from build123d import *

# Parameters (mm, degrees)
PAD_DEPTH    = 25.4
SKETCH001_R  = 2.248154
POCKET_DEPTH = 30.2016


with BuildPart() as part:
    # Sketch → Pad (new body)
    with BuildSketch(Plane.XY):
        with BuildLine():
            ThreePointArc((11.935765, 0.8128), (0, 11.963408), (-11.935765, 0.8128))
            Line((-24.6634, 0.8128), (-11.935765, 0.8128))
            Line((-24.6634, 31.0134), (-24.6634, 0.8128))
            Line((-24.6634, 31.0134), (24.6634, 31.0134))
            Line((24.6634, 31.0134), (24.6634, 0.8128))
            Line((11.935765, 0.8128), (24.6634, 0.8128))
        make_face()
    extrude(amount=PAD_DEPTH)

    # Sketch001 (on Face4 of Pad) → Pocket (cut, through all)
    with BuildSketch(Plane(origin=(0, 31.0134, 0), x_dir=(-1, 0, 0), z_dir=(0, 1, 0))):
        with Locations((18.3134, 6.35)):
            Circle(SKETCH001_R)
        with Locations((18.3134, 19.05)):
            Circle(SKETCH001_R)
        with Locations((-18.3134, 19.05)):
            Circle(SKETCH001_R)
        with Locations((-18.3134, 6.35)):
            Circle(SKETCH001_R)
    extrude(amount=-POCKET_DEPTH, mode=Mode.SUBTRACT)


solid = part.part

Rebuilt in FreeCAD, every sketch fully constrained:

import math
import FreeCAD as App
import Part
import Sketcher

V = App.Vector
Q = App.Units.Quantity

doc = App.newDocument("Part")
params = doc.addObject("Spreadsheet::Sheet", "Params")
for row, (alias, value) in enumerate([
    ("sketch1_width", "1.942 in"),
    ("sketch1_height", "1.189 in"),
    ("pad1_length", "1 in"),
], start=1):
    params.set(f"A{row}", alias)
    params.set(f"B{row}", "=" + value)
    params.setAlias(f"B{row}", alias)

body = doc.addObject("PartDesign::Body", "Body")

# Sketch on XY plane
sketch1 = body.newObject("Sketcher::SketchObject", "Sketch")
sketch1.AttachmentSupport = (doc.getObject("XY_Plane"), [""])
sketch1.MapMode = "FlatFace"
sketch1.addGeometry(Part.ArcOfCircle(Part.Circle(V(0, 0, 0), V(0, 0, 1), 11.963408), math.radians(3.895705), math.radians(176.104295)), False)
sketch1.addGeometry(Part.LineSegment(V(11.935765, 0.8128, 0), V(24.6634, 0.8128, 0)), False)
sketch1.addGeometry(Part.LineSegment(V(24.6634, 0.8128, 0), V(24.6634, 31.0134, 0)), False)
sketch1.addGeometry(Part.LineSegment(V(24.6634, 31.0134, 0), V(-24.6634, 31.0134, 0)), False)
sketch1.addGeometry(Part.LineSegment(V(-24.6634, 31.0134, 0), V(-24.6634, 0.8128, 0)), False)
sketch1.addGeometry(Part.LineSegment(V(-24.6634, 0.8128, 0), V(-11.935765, 0.8128, 0)), False)
sketch1.addConstraint(Sketcher.Constraint("Coincident", 0, 1, 1, 1))
sketch1.addConstraint(Sketcher.Constraint("Coincident", 1, 2, 2, 1))
sketch1.addConstraint(Sketcher.Constraint("Coincident", 2, 2, 3, 1))
sketch1.addConstraint(Sketcher.Constraint("Coincident", 3, 2, 4, 1))
sketch1.addConstraint(Sketcher.Constraint("Coincident", 4, 2, 5, 1))
sketch1.addConstraint(Sketcher.Constraint("Coincident", 5, 2, 0, 2))
sketch1.addConstraint(Sketcher.Constraint("Horizontal", 1))
sketch1.addConstraint(Sketcher.Constraint("Vertical", 2))
sketch1.addConstraint(Sketcher.Constraint("Horizontal", 3))
sketch1.addConstraint(Sketcher.Constraint("Vertical", 4))
sketch1.addConstraint(Sketcher.Constraint("Horizontal", 5))
sketch1.addConstraint(Sketcher.Constraint("Coincident", 0, 3, -1, 1))
sketch1.addConstraint(Sketcher.Constraint("Symmetric", 1, 2, 4, 2, -2))
sketch1.addConstraint(Sketcher.Constraint("DistanceX", 3, 2, 3, 1, Q("1.942 in")))
sketch1.addConstraint(Sketcher.Constraint("DistanceY", 2, 1, 2, 2, Q("1.189 in")))
sketch1.addConstraint(Sketcher.Constraint("DistanceY", -1, 1, 0, 1, Q("0.032 in")))
sketch1.addConstraint(Sketcher.Constraint("Radius", 0, Q("11.963408 mm")))
sketch1.setExpression("Constraints[13]", "Params.sketch1_width")
sketch1.setExpression("Constraints[14]", "Params.sketch1_height")
pad1 = body.newObject("PartDesign::Pad", "Pad")
pad1.Profile = sketch1
pad1.setExpression("Length", "Params.pad1_length")

# Sketch on XZ plane
sketch2 = body.newObject("Sketcher::SketchObject", "Sketch001")
sketch2.AttachmentSupport = (doc.getObject("XZ_Plane"), [""])
sketch2.MapMode = "FlatFace"
sketch2.AttachmentOffset = App.Placement(V(0, 0, -1.221 * 25.4), App.Rotation())
sketch2.addGeometry(Part.Circle(V(-18.3134, 6.35, 0), V(0, 0, 1), 2.248154), False)
sketch2.addGeometry(Part.Circle(V(-18.3134, 19.05, 0), V(0, 0, 1), 2.248154), False)
sketch2.addGeometry(Part.Circle(V(18.3134, 19.05, 0), V(0, 0, 1), 2.248154), False)
sketch2.addGeometry(Part.Circle(V(18.3134, 6.35, 0), V(0, 0, 1), 2.248154), False)
sketch2.addConstraint(Sketcher.Constraint("Equal", 0, 1))
sketch2.addConstraint(Sketcher.Constraint("Equal", 1, 2))
sketch2.addConstraint(Sketcher.Constraint("Equal", 2, 3))
sketch2.addConstraint(Sketcher.Constraint("Symmetric", 1, 3, 2, 3, -2))
sketch2.addConstraint(Sketcher.Constraint("Symmetric", 0, 3, 3, 3, -2))
sketch2.addConstraint(Sketcher.Constraint("Vertical", 0, 3, 1, 3))
sketch2.addConstraint(Sketcher.Constraint("DistanceY", 0, 3, 1, 3, Q("0.5 in")))
sketch2.addConstraint(Sketcher.Constraint("DistanceY", -1, 1, 0, 3, Q("0.25 in")))
sketch2.addConstraint(Sketcher.Constraint("DistanceX", 0, 3, -1, 1, Q("0.721 in")))
sketch2.addConstraint(Sketcher.Constraint("Diameter", 0, Q("4.496308 mm")))
pocket1 = body.newObject("PartDesign::Pocket", "Pocket")
pocket1.Profile = sketch2
pocket1.Type = "ThroughAll"
pocket1.Reversed = True

doc.recompute()
